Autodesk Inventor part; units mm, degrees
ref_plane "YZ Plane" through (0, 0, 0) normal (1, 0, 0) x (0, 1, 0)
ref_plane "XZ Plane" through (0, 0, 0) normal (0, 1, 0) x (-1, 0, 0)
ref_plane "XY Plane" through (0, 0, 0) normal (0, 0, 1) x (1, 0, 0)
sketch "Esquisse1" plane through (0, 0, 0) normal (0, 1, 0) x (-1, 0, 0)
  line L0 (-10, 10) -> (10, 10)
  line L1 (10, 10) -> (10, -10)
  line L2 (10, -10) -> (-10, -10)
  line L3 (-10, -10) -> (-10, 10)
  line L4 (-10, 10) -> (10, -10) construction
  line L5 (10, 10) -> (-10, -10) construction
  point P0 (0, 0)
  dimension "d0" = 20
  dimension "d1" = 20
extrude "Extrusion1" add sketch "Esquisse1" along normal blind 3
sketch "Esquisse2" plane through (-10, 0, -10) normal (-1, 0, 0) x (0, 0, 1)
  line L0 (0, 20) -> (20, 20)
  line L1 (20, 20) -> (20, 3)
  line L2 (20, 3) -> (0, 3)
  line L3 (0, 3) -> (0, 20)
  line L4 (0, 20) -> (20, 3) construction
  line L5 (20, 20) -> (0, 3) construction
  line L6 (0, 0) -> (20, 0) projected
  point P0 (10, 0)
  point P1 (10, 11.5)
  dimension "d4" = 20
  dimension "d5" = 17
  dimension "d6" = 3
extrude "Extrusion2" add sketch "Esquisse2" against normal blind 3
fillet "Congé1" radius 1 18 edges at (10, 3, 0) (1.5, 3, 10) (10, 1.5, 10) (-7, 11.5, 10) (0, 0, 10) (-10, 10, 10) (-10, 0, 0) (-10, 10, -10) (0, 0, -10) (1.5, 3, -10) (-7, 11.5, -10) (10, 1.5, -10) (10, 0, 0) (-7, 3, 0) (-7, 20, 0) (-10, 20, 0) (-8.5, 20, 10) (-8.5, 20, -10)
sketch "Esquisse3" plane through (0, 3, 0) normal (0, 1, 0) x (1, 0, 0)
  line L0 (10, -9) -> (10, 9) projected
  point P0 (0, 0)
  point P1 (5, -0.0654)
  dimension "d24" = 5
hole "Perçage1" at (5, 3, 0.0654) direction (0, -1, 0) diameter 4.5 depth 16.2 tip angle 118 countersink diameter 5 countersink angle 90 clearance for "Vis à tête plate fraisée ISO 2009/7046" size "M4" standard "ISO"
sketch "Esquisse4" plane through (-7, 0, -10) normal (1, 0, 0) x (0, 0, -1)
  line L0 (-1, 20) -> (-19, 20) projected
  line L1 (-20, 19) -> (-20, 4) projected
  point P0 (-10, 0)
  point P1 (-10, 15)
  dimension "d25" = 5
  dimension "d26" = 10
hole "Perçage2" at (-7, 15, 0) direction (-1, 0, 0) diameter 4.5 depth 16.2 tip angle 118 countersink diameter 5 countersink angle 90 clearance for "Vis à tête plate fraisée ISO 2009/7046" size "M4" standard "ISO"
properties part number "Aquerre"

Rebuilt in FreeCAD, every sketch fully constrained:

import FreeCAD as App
import Part
import Sketcher


def add_polygon(sketch, points):
    """Adds a closed chain of lines whose ends are joined by coincident constraints."""
    first, n = sketch.GeometryCount, len(points)
    for a, b in zip(points, points[1:] + points[:1]):
        sketch.addGeometry(Part.LineSegment(App.Vector(*a, 0), App.Vector(*b, 0)), False)
    for i in range(n):
        sketch.addConstraint(Sketcher.Constraint("Coincident", first + i, 2, first + (i + 1) % n, 1))

doc = App.newDocument("Part")
body = doc.addObject("PartDesign::Body", "Body")

# Sketch on XZ plane
sketch1 = body.newObject("Sketcher::SketchObject", "Sketch")
sketch1.AttachmentSupport = (doc.getObject("XZ_Plane"), [""])
sketch1.MapMode = "FlatFace"
add_polygon(sketch1, [(-10, 10), (10, 10), (10, -10), (-10, -10)])  # lines 0-3
sketch1.addConstraint(Sketcher.Constraint("Horizontal", 0))
sketch1.addConstraint(Sketcher.Constraint("Vertical", 1))
sketch1.addConstraint(Sketcher.Constraint("Horizontal", 2))
sketch1.addConstraint(Sketcher.Constraint("Vertical", 3))
sketch1.addConstraint(Sketcher.Constraint("Symmetric", 0, 2, 2, 2, -1, 1))
sketch1.addConstraint(Sketcher.Constraint("Equal", 2, 1))
sketch1.addConstraint(Sketcher.Constraint("DistanceX", 0, 1, 0, 2, 20.0))
pad1 = body.newObject("PartDesign::Pad", "Pad")
pad1.Profile = sketch1
pad1.Length = 3
pad1.Reversed = True

# Sketch on YZ plane
sketch2 = body.newObject("Sketcher::SketchObject", "Sketch001")
sketch2.AttachmentSupport = (doc.getObject("YZ_Plane"), [""])
sketch2.MapMode = "FlatFace"
sketch2.AttachmentOffset = App.Placement(App.Vector(0, 0, -10), App.Rotation())
add_polygon(sketch2, [(20, 10), (20, -10), (3, -10), (3, 10)])  # lines 0-3
sketch2.addConstraint(Sketcher.Constraint("Vertical", 0))
sketch2.addConstraint(Sketcher.Constraint("Horizontal", 1))
sketch2.addConstraint(Sketcher.Constraint("Vertical", 2))
sketch2.addConstraint(Sketcher.Constraint("Horizontal", 3))
sketch2.addConstraint(Sketcher.Constraint("DistanceX", 1, 2, 1, 1, 17.0))
sketch2.addConstraint(Sketcher.Constraint("DistanceY", 0, 2, 0, 1, 20.0))
sketch2.addConstraint(Sketcher.Constraint("DistanceX", -1, 1, 0, 2, 20.0))
sketch2.addConstraint(Sketcher.Constraint("DistanceY", 0, 2, -1, 1, 10.0))
pad2 = body.newObject("PartDesign::Pad", "Pad001")
pad2.Profile = sketch2
pad2.Length = 3
doc.recompute()

fillet = body.newObject("PartDesign::Fillet", "Fillet")
fillet.Base = (pad2, ["Edge1"])
fillet.UseAllEdges = True
fillet.Radius = 1

# Sketch on XZ plane
sketch3 = body.newObject("Sketcher::SketchObject", "Sketch002")
sketch3.AttachmentSupport = (doc.getObject("XZ_Plane"), [""])
sketch3.MapMode = "FlatFace"
sketch3.AttachmentOffset = App.Placement(App.Vector(0, 0, -3), App.Rotation())
sketch3.addGeometry(Part.Circle(App.Vector(5, 0.1, 0), App.Vector(0, 0, 1), 2.2), False)
sketch3.addConstraint(Sketcher.Constraint("Diameter", 0, 4.5))
sketch3.addConstraint(Sketcher.Constraint("DistanceX", -1, 1, 0, 3, 5.0))
sketch3.addConstraint(Sketcher.Constraint("DistanceY", -1, 1, 0, 3, 0.0654))
doc.recompute()
hole = body.newObject("PartDesign::Hole", "Hole")
hole.Profile = sketch3
hole.ThreadType = "None"
hole.Diameter = 4.5
hole.DepthType = "Dimension"
hole.Depth = 16.2
hole.DrillPoint = "Angled"
hole.DrillPointAngle = 118
hole.HoleCutType = "Countersink"
hole.HoleCutDiameter = 5
hole.HoleCutCountersinkAngle = 90
hole.Reversed = True

# Sketch on YZ plane
sketch4 = body.newObject("Sketcher::SketchObject", "Sketch003")
sketch4.AttachmentSupport = (doc.getObject("YZ_Plane"), [""])
sketch4.MapMode = "FlatFace"
sketch4.AttachmentOffset = App.Placement(App.Vector(0, 0, -7), App.Rotation())
sketch4.addGeometry(Part.Circle(App.Vector(15, 0, 0), App.Vector(0, 0, 1), 2.2), False)
sketch4.addConstraint(Sketcher.Constraint("PointOnObject", 0, 3, -1))
sketch4.addConstraint(Sketcher.Constraint("Diameter", 0, 4.5))
sketch4.addConstraint(Sketcher.Constraint("DistanceX", -1, 1, 0, 3, 15.0))
doc.recompute()
hole2 = body.newObject("PartDesign::Hole", "Hole001")
hole2.Profile = sketch4
hole2.ThreadType = "None"
hole2.Diameter = 4.5
hole2.DepthType = "Dimension"
hole2.Depth = 16.2
hole2.DrillPoint = "Angled"
hole2.DrillPointAngle = 118
hole2.HoleCutType = "Countersink"
hole2.HoleCutDiameter = 5
hole2.HoleCutCountersinkAngle = 90

doc.recompute()
